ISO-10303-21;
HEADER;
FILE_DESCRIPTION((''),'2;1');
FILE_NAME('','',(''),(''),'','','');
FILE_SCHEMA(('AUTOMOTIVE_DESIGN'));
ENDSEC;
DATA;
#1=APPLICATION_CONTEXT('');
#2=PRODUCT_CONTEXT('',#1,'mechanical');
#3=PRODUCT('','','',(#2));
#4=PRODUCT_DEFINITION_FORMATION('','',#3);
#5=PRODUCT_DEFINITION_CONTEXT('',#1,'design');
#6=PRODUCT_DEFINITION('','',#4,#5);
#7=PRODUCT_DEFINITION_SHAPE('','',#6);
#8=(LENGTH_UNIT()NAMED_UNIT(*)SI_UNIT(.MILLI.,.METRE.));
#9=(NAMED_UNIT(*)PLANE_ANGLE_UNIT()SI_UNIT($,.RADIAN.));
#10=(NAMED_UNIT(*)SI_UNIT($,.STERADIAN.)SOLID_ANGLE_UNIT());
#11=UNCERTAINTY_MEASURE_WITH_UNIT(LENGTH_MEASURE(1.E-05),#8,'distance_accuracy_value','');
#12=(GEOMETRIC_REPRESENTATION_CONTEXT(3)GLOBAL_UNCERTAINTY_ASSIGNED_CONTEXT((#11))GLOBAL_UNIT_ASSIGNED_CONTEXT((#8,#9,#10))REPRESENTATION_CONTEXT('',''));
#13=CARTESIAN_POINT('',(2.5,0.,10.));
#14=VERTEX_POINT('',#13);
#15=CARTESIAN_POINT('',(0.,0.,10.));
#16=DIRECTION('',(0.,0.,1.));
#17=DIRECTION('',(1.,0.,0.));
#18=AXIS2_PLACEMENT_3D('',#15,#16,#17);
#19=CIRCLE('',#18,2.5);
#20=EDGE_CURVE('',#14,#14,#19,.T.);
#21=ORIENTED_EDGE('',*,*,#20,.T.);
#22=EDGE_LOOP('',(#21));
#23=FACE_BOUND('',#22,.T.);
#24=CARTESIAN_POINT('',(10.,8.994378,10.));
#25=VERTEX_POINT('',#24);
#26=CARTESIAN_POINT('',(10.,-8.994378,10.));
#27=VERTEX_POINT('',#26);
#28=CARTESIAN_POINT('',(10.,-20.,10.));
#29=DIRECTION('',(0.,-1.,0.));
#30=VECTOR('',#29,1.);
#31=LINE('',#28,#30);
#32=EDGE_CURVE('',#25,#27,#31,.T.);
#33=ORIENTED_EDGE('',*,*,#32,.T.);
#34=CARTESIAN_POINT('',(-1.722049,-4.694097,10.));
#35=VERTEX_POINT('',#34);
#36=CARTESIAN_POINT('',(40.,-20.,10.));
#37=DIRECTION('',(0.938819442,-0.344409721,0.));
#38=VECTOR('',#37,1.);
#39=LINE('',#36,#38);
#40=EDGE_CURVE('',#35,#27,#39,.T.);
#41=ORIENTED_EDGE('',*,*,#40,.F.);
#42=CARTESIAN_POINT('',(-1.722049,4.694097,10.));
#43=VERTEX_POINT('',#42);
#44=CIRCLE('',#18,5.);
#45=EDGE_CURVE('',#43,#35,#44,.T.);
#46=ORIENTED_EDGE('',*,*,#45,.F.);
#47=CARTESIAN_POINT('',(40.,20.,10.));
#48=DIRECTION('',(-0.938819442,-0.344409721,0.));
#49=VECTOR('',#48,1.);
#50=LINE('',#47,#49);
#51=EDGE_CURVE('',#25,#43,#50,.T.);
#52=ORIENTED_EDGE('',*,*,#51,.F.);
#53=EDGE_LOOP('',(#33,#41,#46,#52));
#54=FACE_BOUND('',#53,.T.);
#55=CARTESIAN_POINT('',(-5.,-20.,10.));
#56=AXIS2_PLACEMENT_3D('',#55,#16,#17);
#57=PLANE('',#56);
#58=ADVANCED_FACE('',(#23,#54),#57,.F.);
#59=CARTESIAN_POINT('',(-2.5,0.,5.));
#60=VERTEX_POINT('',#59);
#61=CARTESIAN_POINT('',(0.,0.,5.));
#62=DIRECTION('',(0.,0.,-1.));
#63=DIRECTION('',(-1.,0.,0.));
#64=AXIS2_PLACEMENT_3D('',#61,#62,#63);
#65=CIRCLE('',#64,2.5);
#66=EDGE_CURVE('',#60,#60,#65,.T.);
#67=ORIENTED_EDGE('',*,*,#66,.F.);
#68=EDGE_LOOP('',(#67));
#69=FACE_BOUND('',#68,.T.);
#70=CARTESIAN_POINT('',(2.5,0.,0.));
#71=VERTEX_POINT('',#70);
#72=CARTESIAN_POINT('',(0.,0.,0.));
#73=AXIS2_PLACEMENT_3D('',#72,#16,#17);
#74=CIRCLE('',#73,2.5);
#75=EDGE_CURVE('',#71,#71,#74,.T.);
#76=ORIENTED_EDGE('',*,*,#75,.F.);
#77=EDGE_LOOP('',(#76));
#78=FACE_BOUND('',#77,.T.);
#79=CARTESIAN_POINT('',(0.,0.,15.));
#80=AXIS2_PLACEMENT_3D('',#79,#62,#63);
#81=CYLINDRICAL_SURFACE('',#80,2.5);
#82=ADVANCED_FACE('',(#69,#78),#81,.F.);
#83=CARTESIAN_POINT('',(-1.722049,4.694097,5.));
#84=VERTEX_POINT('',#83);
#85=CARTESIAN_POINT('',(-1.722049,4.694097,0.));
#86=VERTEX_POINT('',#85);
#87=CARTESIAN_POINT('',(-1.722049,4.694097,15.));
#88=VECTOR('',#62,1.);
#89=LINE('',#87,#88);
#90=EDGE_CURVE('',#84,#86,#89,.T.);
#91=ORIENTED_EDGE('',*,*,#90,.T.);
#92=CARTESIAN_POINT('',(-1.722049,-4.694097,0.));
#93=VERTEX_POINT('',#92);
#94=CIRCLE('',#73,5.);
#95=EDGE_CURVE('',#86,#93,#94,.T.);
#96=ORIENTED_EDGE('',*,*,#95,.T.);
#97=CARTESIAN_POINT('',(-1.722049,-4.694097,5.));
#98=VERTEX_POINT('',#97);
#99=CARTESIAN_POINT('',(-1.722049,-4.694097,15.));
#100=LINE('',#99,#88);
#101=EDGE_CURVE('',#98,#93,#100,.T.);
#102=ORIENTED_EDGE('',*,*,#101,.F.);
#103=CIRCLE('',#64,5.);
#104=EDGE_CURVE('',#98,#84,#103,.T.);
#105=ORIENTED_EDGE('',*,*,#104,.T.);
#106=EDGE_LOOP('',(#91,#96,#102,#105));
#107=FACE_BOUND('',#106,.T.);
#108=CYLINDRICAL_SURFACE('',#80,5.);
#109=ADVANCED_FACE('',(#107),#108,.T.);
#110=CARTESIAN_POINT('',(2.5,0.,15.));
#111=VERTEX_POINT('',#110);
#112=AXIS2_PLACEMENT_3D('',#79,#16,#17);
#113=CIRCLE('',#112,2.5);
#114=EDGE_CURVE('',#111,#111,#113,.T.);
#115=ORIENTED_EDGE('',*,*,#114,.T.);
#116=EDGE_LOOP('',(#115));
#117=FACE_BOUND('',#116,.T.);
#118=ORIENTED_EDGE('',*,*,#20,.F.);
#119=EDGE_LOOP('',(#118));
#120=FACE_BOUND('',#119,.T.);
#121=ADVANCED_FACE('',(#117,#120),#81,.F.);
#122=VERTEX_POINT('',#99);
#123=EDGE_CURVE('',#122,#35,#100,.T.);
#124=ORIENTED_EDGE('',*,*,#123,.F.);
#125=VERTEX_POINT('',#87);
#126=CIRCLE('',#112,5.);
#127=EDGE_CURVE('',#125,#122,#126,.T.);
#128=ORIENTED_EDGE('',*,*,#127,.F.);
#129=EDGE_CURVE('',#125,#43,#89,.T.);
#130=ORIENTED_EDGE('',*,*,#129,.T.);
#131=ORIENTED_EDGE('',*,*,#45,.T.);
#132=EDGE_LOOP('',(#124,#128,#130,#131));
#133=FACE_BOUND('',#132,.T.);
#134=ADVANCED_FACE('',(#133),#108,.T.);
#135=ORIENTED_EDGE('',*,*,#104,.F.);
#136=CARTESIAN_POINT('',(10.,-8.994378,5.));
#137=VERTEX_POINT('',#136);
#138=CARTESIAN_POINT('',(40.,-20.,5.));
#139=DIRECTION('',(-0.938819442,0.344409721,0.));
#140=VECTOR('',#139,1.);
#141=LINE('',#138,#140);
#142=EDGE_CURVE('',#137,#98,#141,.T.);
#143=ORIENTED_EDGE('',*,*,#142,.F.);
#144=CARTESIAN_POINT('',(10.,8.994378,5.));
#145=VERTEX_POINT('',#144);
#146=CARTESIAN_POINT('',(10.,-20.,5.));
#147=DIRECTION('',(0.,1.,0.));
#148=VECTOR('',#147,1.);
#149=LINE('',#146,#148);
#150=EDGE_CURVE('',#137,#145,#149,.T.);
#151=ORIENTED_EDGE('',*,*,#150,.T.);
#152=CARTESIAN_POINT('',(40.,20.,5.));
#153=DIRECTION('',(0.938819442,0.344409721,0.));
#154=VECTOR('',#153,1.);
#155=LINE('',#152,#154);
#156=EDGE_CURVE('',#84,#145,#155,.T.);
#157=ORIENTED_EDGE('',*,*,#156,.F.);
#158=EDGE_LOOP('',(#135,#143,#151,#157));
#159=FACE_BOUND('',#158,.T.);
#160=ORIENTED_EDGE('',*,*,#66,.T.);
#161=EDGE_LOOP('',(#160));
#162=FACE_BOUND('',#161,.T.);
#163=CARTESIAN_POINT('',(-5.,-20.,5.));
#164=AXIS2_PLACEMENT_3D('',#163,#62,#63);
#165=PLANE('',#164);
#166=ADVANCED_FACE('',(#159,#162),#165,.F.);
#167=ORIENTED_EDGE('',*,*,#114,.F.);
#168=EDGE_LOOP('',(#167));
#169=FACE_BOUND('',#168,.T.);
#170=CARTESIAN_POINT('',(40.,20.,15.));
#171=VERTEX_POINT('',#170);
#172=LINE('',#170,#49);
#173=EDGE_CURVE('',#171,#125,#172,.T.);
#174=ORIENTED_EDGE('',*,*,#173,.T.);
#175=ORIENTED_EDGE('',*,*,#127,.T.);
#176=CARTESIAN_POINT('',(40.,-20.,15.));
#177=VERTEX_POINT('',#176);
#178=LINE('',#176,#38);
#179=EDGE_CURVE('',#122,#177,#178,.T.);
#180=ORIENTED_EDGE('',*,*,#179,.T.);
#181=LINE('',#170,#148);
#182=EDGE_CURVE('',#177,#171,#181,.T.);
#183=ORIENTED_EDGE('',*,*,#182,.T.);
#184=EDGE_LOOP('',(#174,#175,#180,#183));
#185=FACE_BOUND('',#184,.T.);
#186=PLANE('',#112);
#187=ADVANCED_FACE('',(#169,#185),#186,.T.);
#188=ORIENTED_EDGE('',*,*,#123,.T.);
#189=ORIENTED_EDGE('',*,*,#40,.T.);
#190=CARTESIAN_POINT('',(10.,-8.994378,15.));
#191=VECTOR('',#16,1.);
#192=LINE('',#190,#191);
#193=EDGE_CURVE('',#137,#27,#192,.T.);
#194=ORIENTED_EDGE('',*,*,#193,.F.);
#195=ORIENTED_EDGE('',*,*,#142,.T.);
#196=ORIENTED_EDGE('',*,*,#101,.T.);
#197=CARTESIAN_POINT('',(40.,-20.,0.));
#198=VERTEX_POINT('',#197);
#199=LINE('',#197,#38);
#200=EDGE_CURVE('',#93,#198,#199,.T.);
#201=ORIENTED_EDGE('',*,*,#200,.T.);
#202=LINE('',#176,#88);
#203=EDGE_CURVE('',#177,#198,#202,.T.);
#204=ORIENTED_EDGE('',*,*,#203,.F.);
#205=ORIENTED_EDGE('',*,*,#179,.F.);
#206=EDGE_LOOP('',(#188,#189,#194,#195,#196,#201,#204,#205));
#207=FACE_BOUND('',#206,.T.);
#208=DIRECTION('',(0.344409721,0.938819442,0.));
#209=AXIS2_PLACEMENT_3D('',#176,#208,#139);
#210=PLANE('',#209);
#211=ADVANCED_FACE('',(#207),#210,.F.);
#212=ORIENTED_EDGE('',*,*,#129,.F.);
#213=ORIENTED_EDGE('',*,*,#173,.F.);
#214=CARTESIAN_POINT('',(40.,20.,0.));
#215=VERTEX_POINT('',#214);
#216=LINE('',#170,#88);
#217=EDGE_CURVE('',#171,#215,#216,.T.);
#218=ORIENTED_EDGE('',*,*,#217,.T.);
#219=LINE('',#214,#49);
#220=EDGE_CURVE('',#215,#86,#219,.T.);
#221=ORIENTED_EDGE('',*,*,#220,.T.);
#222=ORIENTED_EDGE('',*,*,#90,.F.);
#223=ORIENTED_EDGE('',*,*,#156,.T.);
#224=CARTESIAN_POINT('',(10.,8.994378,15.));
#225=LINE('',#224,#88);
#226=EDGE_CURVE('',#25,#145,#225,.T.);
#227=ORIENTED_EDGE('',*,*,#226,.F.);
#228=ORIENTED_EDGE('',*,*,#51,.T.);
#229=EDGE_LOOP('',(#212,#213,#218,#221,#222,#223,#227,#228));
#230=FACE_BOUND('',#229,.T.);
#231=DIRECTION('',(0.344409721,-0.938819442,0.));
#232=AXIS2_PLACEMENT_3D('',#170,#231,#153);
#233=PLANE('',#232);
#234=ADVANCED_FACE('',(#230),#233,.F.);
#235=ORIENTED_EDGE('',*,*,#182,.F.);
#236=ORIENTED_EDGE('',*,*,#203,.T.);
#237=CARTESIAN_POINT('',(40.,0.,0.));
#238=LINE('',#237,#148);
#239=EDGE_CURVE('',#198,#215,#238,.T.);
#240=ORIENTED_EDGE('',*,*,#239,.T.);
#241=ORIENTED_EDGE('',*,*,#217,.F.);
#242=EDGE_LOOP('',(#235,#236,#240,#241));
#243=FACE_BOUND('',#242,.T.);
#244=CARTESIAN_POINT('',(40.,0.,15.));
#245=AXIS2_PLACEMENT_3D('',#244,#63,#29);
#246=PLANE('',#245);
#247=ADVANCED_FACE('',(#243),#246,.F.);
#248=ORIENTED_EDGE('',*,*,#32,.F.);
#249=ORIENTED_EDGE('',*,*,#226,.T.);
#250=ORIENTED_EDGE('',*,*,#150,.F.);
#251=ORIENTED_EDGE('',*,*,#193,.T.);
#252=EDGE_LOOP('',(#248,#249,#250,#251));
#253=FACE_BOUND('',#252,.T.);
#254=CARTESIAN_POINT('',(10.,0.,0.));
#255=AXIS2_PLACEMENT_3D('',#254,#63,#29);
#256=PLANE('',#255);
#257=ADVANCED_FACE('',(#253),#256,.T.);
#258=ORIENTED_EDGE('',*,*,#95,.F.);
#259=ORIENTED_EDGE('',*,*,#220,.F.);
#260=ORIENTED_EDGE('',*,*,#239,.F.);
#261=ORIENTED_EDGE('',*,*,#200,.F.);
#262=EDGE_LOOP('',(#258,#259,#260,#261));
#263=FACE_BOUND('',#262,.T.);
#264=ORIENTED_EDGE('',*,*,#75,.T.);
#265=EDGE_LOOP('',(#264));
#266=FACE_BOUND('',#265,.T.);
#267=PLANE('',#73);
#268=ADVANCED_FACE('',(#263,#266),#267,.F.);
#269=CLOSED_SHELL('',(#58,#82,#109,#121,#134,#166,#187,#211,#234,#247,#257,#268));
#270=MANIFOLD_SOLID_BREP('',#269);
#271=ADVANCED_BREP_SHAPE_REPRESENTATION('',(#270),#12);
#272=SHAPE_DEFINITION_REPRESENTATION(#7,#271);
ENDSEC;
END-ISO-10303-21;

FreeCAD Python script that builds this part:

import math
import FreeCAD as App
import Part
import Sketcher

doc = App.newDocument("Part")
body = doc.addObject("PartDesign::Body", "Body")

# Sketch on XY plane
sketch1 = doc.addObject("Sketcher::SketchObject", "Sketch")
body.addObject(sketch1)
sketch1.AttachmentSupport = (doc.XY_Plane, [""])
sketch1.MapMode = "FlatFace"
sketch1.addGeometry([
    Part.LineSegment(App.Vector(40, 20, 0), App.Vector(-1.7, 4.7, 0)),  # 0
    Part.ArcOfCircle(Part.Circle(App.Vector(0, 0, 0), App.Vector(0, 0, 1), 5), math.radians(110), math.radians(250)),  # 1
    Part.LineSegment(App.Vector(-1.7, -4.7, 0), App.Vector(40, -20, 0)),  # 2
    Part.LineSegment(App.Vector(40, -20, 0), App.Vector(40, 20, 0)),  # 3
    Part.Circle(App.Vector(0, 0, 0), App.Vector(0, 0, 1), 2.5),  # 4
], False)
sketch1.addConstraint([
    Sketcher.Constraint("Tangent", 0, 2, 1, 1),
    Sketcher.Constraint("Tangent", 1, 2, 2, 1),
    Sketcher.Constraint("Coincident", 2, 2, 3, 1),
    Sketcher.Constraint("Coincident", 3, 2, 0, 1),
    Sketcher.Constraint("Vertical", 3),
    Sketcher.Constraint("Coincident", 1, 3, -1, 1),
    Sketcher.Constraint("Coincident", 4, 3, -1, 1),
    Sketcher.Constraint("Vertical", 0, 2, 1, 2),
    Sketcher.Constraint("Diameter", 4, 5.0),
    Sketcher.Constraint("Radius", 1, 5.0),
    Sketcher.Constraint("DistanceY", 3, 1, 3, 2, 40.0),
    Sketcher.Constraint("DistanceX", -1, 1, 2, 2, 40.0),
])
pad1 = doc.addObject("PartDesign::Pad", "Pad")
body.addObject(pad1)
pad1.Profile = sketch1
pad1.Length = 15

# Sketch on YZ plane
sketch2 = doc.addObject("Sketcher::SketchObject", "Sketch001")
body.addObject(sketch2)
sketch2.AttachmentSupport = (doc.YZ_Plane, [""])
sketch2.MapMode = "FlatFace"
sketch2.AttachmentOffset = App.Placement(App.Vector(0, 0, 10), App.Rotation())
sketch2.addGeometry([
    Part.LineSegment(App.Vector(20, 10, 0), App.Vector(-20, 10, 0)),
    Part.LineSegment(App.Vector(-20, 10, 0), App.Vector(-20, 5, 0)),
    Part.LineSegment(App.Vector(-20, 5, 0), App.Vector(20, 5, 0)),
    Part.LineSegment(App.Vector(20, 5, 0), App.Vector(20, 10, 0)),
], False)
sketch2.addConstraint([
    Sketcher.Constraint("Coincident", 0, 2, 1, 1),
    Sketcher.Constraint("Coincident", 1, 2, 2, 1),
    Sketcher.Constraint("Coincident", 2, 2, 3, 1),
    Sketcher.Constraint("Coincident", 3, 2, 0, 1),
    Sketcher.Constraint("Horizontal", 0),
    Sketcher.Constraint("Vertical", 1),
    Sketcher.Constraint("Horizontal", 2),
    Sketcher.Constraint("Vertical", 3),
    Sketcher.Constraint("DistanceX", 0, 2, 0, 1, 40.0),
    Sketcher.Constraint("DistanceY", 1, 2, 1, 1, 5.0),
    Sketcher.Constraint("DistanceX", 0, 2, -1, 1, 20.0),
    Sketcher.Constraint("DistanceY", -1, 1, 0, 2, 10.0),
])
pocket1 = doc.addObject("PartDesign::Pocket", "Pocket")
body.addObject(pocket1)
pocket1.Profile = sketch2
pocket1.Type = "ThroughAll"

doc.recompute()
